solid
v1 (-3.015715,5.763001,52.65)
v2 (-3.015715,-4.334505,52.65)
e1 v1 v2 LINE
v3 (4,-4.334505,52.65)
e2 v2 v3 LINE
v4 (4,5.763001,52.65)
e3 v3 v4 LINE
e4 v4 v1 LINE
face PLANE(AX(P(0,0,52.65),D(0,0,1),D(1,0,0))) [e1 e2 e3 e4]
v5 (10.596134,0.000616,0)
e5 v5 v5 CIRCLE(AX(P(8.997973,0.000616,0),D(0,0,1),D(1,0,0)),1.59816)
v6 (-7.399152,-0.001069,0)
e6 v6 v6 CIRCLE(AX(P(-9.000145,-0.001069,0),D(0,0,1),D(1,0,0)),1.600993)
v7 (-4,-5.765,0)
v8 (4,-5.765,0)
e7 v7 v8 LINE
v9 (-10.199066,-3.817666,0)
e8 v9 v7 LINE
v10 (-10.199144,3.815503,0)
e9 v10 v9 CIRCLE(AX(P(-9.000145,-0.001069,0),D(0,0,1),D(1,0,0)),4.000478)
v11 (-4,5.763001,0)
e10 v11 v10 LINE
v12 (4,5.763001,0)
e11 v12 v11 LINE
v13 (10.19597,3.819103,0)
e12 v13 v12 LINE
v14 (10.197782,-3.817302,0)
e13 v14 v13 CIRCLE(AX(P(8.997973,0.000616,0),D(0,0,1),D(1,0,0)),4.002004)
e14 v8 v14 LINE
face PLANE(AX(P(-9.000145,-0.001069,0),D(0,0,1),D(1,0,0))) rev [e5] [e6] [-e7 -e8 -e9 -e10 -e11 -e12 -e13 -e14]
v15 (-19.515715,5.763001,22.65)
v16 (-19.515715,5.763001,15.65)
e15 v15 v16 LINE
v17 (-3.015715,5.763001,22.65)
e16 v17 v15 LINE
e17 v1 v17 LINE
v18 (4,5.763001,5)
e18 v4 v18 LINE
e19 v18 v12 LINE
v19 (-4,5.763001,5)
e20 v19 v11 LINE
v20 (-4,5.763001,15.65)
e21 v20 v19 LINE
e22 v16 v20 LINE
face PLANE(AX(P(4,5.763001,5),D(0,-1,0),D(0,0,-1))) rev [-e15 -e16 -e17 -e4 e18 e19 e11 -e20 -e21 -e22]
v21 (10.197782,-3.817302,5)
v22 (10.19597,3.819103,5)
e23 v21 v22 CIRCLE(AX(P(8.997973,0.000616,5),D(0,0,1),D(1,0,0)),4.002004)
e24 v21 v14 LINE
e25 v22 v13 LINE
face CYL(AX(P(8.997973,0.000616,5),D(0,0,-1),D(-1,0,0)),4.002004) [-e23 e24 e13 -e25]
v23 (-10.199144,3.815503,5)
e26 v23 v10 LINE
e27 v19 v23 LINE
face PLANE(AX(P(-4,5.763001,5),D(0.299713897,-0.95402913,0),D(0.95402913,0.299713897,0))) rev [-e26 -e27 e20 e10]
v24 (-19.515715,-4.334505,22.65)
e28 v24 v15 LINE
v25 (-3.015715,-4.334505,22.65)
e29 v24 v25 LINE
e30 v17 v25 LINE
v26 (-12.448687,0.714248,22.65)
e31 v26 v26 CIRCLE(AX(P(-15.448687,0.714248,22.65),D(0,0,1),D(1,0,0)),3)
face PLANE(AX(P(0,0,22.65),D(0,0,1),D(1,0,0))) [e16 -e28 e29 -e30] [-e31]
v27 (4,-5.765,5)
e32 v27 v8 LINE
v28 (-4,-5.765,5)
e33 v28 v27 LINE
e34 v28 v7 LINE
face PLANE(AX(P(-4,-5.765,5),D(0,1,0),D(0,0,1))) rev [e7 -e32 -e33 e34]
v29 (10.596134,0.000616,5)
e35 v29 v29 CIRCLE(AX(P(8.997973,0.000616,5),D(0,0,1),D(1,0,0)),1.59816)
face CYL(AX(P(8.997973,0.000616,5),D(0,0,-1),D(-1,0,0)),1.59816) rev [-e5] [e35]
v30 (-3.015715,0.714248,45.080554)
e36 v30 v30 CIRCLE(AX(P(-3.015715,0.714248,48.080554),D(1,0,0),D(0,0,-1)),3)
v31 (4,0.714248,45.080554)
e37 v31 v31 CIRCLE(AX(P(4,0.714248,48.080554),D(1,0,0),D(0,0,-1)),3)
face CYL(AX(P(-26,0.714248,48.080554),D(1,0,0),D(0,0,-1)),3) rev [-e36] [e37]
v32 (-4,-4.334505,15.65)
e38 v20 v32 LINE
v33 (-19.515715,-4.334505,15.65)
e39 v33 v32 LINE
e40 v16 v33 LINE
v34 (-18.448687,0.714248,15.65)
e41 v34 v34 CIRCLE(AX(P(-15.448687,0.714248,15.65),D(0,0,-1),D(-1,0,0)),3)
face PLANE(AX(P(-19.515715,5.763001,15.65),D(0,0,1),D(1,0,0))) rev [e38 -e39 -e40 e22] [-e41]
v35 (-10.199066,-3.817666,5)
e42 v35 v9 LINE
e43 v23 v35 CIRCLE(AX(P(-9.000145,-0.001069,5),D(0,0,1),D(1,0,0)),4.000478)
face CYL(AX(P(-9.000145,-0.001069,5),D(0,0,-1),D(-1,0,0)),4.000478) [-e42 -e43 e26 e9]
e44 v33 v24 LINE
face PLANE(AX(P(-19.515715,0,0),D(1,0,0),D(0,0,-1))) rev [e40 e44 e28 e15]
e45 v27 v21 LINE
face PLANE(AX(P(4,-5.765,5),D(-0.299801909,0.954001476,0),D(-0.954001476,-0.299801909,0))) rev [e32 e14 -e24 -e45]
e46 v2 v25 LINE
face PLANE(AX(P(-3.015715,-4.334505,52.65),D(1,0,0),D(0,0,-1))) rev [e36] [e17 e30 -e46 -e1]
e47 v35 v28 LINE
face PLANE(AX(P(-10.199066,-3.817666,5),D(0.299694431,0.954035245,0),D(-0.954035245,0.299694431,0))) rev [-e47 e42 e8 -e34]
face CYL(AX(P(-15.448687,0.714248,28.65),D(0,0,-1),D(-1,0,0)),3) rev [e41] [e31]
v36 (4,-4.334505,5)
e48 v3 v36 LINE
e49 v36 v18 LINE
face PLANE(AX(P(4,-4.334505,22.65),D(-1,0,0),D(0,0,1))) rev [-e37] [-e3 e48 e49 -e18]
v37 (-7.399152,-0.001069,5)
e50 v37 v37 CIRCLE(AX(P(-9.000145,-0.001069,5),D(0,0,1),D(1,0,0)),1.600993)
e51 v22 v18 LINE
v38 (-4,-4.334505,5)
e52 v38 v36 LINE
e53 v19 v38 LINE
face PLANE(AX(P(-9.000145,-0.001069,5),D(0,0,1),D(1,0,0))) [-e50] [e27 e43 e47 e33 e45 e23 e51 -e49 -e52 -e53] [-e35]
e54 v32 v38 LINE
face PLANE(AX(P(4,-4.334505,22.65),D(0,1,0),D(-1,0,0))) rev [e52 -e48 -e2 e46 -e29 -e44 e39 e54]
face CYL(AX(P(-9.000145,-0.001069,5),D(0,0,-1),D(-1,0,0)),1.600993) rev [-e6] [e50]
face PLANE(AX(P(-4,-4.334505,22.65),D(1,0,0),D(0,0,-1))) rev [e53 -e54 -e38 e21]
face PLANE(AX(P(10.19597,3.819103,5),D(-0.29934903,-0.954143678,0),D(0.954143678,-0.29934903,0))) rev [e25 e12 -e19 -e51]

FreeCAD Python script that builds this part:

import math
import FreeCAD as App
import Part
import Sketcher
from FreeCAD import Vector


def add_polygon(sketch, points):
    """Adds a closed chain of lines whose ends are joined by coincident constraints."""
    first, n = sketch.GeometryCount, len(points)
    for a, b in zip(points, points[1:] + points[:1]):
        sketch.addGeometry(Part.LineSegment(App.Vector(*a, 0), App.Vector(*b, 0)), False)
    for i in range(n):
        sketch.addConstraint(Sketcher.Constraint("Coincident", first + i, 2, first + (i + 1) % n, 1))

doc = App.newDocument("Part")
body = doc.addObject("PartDesign::Body", "Body")

# Sketch on XY plane
sketch1 = body.newObject("Sketcher::SketchObject", "Sketch")
sketch1.AttachmentSupport = (doc.getObject("XY_Plane"), [""])
sketch1.MapMode = "FlatFace"
sketch1.addGeometry(Part.LineSegment(Vector(-10.2, -3.8, 0), Vector(-4, -5.8, 0)), False)
sketch1.addGeometry(Part.LineSegment(Vector(-4, -5.8, 0), Vector(4, -5.8, 0)), False)
sketch1.addGeometry(Part.LineSegment(Vector(4, -5.8, 0), Vector(10.2, -3.8, 0)), False)
sketch1.addGeometry(Part.ArcOfCircle(Part.Circle(Vector(9, 0, 0), Vector(0, 0, 1), 4), math.radians(-73), math.radians(73)), False)
sketch1.addGeometry(Part.LineSegment(Vector(10.2, 3.8, 0), Vector(4, 5.8, 0)), False)
sketch1.addGeometry(Part.LineSegment(Vector(4, 5.8, 0), Vector(-4, 5.8, 0)), False)
sketch1.addGeometry(Part.LineSegment(Vector(-4, 5.8, 0), Vector(-10.2, 3.8, 0)), False)
sketch1.addGeometry(Part.ArcOfCircle(Part.Circle(Vector(-9, 0, 0), Vector(0, 0, 1), 4), math.radians(107), math.radians(253)), False)
sketch1.addGeometry(Part.Circle(Vector(-9, 0, 0), Vector(0, 0, 1), 1.6), False)
sketch1.addGeometry(Part.Circle(Vector(9, 0, 0), Vector(0, 0, 1), 1.6), False)
sketch1.addConstraint(Sketcher.Constraint("Coincident", 0, 2, 1, 1))
sketch1.addConstraint(Sketcher.Constraint("Coincident", 1, 2, 2, 1))
sketch1.addConstraint(Sketcher.Constraint("Tangent", 2, 2, 3, 1))
sketch1.addConstraint(Sketcher.Constraint("Tangent", 3, 2, 4, 1))
sketch1.addConstraint(Sketcher.Constraint("Coincident", 4, 2, 5, 1))
sketch1.addConstraint(Sketcher.Constraint("Coincident", 5, 2, 6, 1))
sketch1.addConstraint(Sketcher.Constraint("Tangent", 6, 2, 7, 1))
sketch1.addConstraint(Sketcher.Constraint("Tangent", 7, 2, 0, 1))
sketch1.addConstraint(Sketcher.Constraint("Horizontal", 1))
sketch1.addConstraint(Sketcher.Constraint("Horizontal", 5))
sketch1.addConstraint(Sketcher.Constraint("Coincident", 8, 3, 7, 3))
sketch1.addConstraint(Sketcher.Constraint("Coincident", 9, 3, 3, 3))
sketch1.addConstraint(Sketcher.Constraint("Vertical", 1, 2, 4, 2))
sketch1.addConstraint(Sketcher.Constraint("Vertical", 0, 2, 5, 2))
sketch1.addConstraint(Sketcher.Constraint("DistanceX", 1, 1, 1, 2, 8.0))
sketch1.addConstraint(Sketcher.Constraint("DistanceX", 0, 2, -1, 1, 4.0))
sketch1.addConstraint(Sketcher.Constraint("Diameter", 9, 3.196321))
sketch1.addConstraint(Sketcher.Constraint("Diameter", 8, 3.201987))
sketch1.addConstraint(Sketcher.Constraint("DistanceY", 0, 2, -1, 1, 5.765))
sketch1.addConstraint(Sketcher.Constraint("DistanceY", -1, 1, 4, 2, 5.763001))
sketch1.addConstraint(Sketcher.Constraint("Radius", 3, 4.002004))
sketch1.addConstraint(Sketcher.Constraint("Radius", 7, 4.000478))
sketch1.addConstraint(Sketcher.Constraint("DistanceX", 6, 2, 7, 3, 1.198999))
sketch1.addConstraint(Sketcher.Constraint("DistanceY", 2, 2, -1, 1, 3.817302))
sketch1.addConstraint(Sketcher.Constraint("Distance", 4, 6.493749))
sketch1.addConstraint(Sketcher.Constraint("DistanceY", 7, 3, -1, 1, 0.001069))
pad1 = body.newObject("PartDesign::Pad", "Pad")
pad1.Profile = sketch1
pad1.Length = 5

# Sketch on XY plane
sketch2 = body.newObject("Sketcher::SketchObject", "Sketch001")
sketch2.AttachmentSupport = (doc.getObject("XY_Plane"), [""])
sketch2.MapMode = "FlatFace"
sketch2.AttachmentOffset = App.Placement(Vector(0, 0, 5), App.Rotation())
add_polygon(sketch2, [(-4, 6), (-4, -4), (4, -4), (4, 6)])  # lines 0-3
sketch2.addConstraint(Sketcher.Constraint("Vertical", 0))
sketch2.addConstraint(Sketcher.Constraint("Horizontal", 1))
sketch2.addConstraint(Sketcher.Constraint("Vertical", 2))
sketch2.addConstraint(Sketcher.Constraint("Horizontal", 3))
sketch2.addConstraint(Sketcher.Constraint("DistanceX", 1, 1, 1, 2, 8.0))
sketch2.addConstraint(Sketcher.Constraint("DistanceX", 0, 2, -1, 1, 4.0))
sketch2.addConstraint(Sketcher.Constraint("DistanceY", -1, 1, 2, 2, 5.763001))
sketch2.addConstraint(Sketcher.Constraint("DistanceY", 0, 2, 0, 1, 10.097506))
pad2 = body.newObject("PartDesign::Pad", "Pad001")
pad2.Profile = sketch2
pad2.Length = 17.65

# Sketch on YZ plane
sketch3 = body.newObject("Sketcher::SketchObject", "Sketch002")
sketch3.AttachmentSupport = (doc.getObject("YZ_Plane"), [""])
sketch3.MapMode = "FlatFace"
sketch3.AttachmentOffset = App.Placement(Vector(0, 0, -4), App.Rotation())
add_polygon(sketch3, [(6, 16), (-4, 16), (-4, 23), (6, 23)])  # lines 0-3
sketch3.addConstraint(Sketcher.Constraint("Horizontal", 0))
sketch3.addConstraint(Sketcher.Constraint("Vertical", 1))
sketch3.addConstraint(Sketcher.Constraint("Horizontal", 2))
sketch3.addConstraint(Sketcher.Constraint("Vertical", 3))
sketch3.addConstraint(Sketcher.Constraint("DistanceY", 1, 1, 1, 2, 7.0))
sketch3.addConstraint(Sketcher.Constraint("DistanceY", -1, 1, 0, 2, 15.65))
sketch3.addConstraint(Sketcher.Constraint("DistanceX", -1, 1, 2, 2, 5.763001))
sketch3.addConstraint(Sketcher.Constraint("DistanceX", 0, 2, 0, 1, 10.097506))
pad3 = body.newObject("PartDesign::Pad", "Pad002")
pad3.Profile = sketch3
pad3.Length = 15.515714
pad3.Reversed = True

# Sketch on XY plane
sketch4 = body.newObject("Sketcher::SketchObject", "Sketch003")
sketch4.AttachmentSupport = (doc.getObject("XY_Plane"), [""])
sketch4.MapMode = "FlatFace"
sketch4.AttachmentOffset = App.Placement(Vector(0, 0, 15.65), App.Rotation())
sketch4.addGeometry(Part.Circle(Vector(-15.4, 0.7, 0), Vector(0, 0, 1), 3), False)
sketch4.addConstraint(Sketcher.Constraint("Diameter", 0, 6.0))
sketch4.addConstraint(Sketcher.Constraint("DistanceY", -1, 1, 0, 3, 0.714248))
sketch4.addConstraint(Sketcher.Constraint("DistanceX", 0, 3, -1, 1, 15.448687))
pocket1 = body.newObject("PartDesign::Pocket", "Pocket")
pocket1.Profile = sketch4
pocket1.Length = 13
pocket1.Reversed = True

# Sketch on XY plane
sketch5 = body.newObject("Sketcher::SketchObject", "Sketch004")
sketch5.AttachmentSupport = (doc.getObject("XY_Plane"), [""])
sketch5.MapMode = "FlatFace"
sketch5.AttachmentOffset = App.Placement(Vector(0, 0, 22.65), App.Rotation())
add_polygon(sketch5, [(-3, 6), (-3, -4), (4, -4), (4, 6)])  # lines 0-3
sketch5.addConstraint(Sketcher.Constraint("Vertical", 0))
sketch5.addConstraint(Sketcher.Constraint("Horizontal", 1))
sketch5.addConstraint(Sketcher.Constraint("Vertical", 2))
sketch5.addConstraint(Sketcher.Constraint("Horizontal", 3))
sketch5.addConstraint(Sketcher.Constraint("DistanceX", -1, 1, 1, 2, 4.0))
sketch5.addConstraint(Sketcher.Constraint("DistanceY", -1, 1, 2, 2, 5.763001))
sketch5.addConstraint(Sketcher.Constraint("DistanceX", 1, 1, 1, 2, 7.015715))
sketch5.addConstraint(Sketcher.Constraint("DistanceY", 0, 2, 0, 1, 10.097506))
pad4 = body.newObject("PartDesign::Pad", "Pad003")
pad4.Profile = sketch5
pad4.Length = 30

# Sketch on YZ plane
sketch6 = body.newObject("Sketcher::SketchObject", "Sketch005")
sketch6.AttachmentSupport = (doc.getObject("YZ_Plane"), [""])
sketch6.MapMode = "FlatFace"
sketch6.AttachmentOffset = App.Placement(Vector(0, 0, 4), App.Rotation())
sketch6.addGeometry(Part.Circle(Vector(0.7, 48.1, 0), Vector(0, 0, 1), 3), False)
sketch6.addConstraint(Sketcher.Constraint("Diameter", 0, 6.0))
sketch6.addConstraint(Sketcher.Constraint("DistanceX", -1, 1, 0, 3, 0.714248))
sketch6.addConstraint(Sketcher.Constraint("DistanceY", -1, 1, 0, 3, 48.080554))
pocket2 = body.newObject("PartDesign::Pocket", "Pocket001")
pocket2.Profile = sketch6
pocket2.Length = 30

doc.recompute()
